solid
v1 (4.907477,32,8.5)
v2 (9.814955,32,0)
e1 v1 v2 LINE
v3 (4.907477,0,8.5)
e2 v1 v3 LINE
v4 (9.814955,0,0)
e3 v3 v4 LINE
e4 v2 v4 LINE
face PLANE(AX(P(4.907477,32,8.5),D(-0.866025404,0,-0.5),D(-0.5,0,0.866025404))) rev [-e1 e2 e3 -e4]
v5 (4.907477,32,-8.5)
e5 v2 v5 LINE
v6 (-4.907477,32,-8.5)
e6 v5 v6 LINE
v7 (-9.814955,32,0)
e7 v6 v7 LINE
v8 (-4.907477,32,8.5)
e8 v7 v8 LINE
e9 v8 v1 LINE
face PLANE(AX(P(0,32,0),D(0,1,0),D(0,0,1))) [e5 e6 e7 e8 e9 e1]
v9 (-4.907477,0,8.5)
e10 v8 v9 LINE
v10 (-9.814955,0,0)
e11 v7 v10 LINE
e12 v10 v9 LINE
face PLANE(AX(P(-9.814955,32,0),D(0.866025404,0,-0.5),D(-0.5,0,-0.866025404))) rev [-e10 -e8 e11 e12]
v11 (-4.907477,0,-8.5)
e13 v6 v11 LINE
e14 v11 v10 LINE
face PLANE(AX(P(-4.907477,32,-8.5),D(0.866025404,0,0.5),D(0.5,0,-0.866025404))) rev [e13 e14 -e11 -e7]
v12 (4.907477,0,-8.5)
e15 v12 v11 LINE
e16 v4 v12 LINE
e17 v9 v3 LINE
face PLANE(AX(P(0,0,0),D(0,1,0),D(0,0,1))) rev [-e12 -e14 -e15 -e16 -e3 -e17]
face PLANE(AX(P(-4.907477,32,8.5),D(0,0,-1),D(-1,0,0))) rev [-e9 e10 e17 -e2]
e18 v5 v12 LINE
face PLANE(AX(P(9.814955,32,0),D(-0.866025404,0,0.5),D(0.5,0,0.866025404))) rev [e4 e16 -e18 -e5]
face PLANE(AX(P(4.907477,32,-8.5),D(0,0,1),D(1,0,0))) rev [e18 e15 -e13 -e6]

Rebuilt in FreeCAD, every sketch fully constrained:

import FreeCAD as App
import Part
import Sketcher

V = App.Vector
Q = App.Units.Quantity


def add_polygon(sketch, points):
    """Adds a closed chain of lines whose ends are joined by coincident constraints."""
    first, n = sketch.GeometryCount, len(points)
    for a, b in zip(points, points[1:] + points[:1]):
        sketch.addGeometry(Part.LineSegment(App.Vector(*a, 0), App.Vector(*b, 0)), False)
    for i in range(n):
        sketch.addConstraint(Sketcher.Constraint("Coincident", first + i, 2, first + (i + 1) % n, 1))

doc = App.newDocument("Part")
body = doc.addObject("PartDesign::Body", "Body")

# Sketch on XZ plane
sketch1 = body.newObject("Sketcher::SketchObject", "Sketch")
sketch1.AttachmentSupport = (doc.getObject("XZ_Plane"), [""])
sketch1.MapMode = "FlatFace"
add_polygon(sketch1, [(5, 8), (10, 0), (5, -8), (-5, -8), (-10, 0), (-5, 8)])  # lines 0-5
sketch1.addConstraint([
    Sketcher.Constraint("Horizontal", 2),
    Sketcher.Constraint("Horizontal", 5),
    Sketcher.Constraint("Symmetric", 0, 2, 3, 2, -1, 1),
    Sketcher.Constraint("Symmetric", 1, 2, 4, 2, -1, 1),
    Sketcher.Constraint("PointOnObject", 0, 2, -1),
    Sketcher.Constraint("Parallel", 0, 3),
    Sketcher.Constraint("Vertical", 2, 2, 4, 2),
    Sketcher.Constraint("Angle", 0, Q("-60 deg")),
    Sketcher.Constraint("DistanceY", 2, 2, 4, 2, Q("17 mm")),
    Sketcher.Constraint("DistanceX", 2, 2, 2, 1, Q("9.814955 mm")),
])
pad1 = body.newObject("PartDesign::Pad", "Pad")
pad1.Profile = sketch1
pad1.Length = 32
pad1.Reversed = True

doc.recompute()
